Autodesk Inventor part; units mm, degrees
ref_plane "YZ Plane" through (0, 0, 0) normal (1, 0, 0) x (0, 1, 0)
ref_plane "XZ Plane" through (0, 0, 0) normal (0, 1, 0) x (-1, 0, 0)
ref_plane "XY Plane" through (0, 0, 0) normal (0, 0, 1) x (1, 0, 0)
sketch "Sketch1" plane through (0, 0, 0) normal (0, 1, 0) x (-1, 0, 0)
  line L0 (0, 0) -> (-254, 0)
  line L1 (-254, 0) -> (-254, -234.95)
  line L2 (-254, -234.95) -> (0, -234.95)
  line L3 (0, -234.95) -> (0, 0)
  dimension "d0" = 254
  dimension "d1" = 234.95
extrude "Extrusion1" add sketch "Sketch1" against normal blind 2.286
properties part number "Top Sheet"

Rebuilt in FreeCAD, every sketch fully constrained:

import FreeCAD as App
import Part
import Sketcher

V = App.Vector
Q = App.Units.Quantity

doc = App.newDocument("Part")
body = doc.addObject("PartDesign::Body", "Body")

# Sketch on XZ plane
sketch1 = doc.addObject("Sketcher::SketchObject", "Sketch")
body.addObject(sketch1)
sketch1.AttachmentSupport = (doc.XZ_Plane, [""])
sketch1.MapMode = "FlatFace"
sketch1.addGeometry([
    Part.LineSegment(V(0, -235, 0), V(0, 0, 0)),
    Part.LineSegment(V(0, 0, 0), V(254, 0, 0)),
    Part.LineSegment(V(254, 0, 0), V(254, -235, 0)),
    Part.LineSegment(V(254, -235, 0), V(0, -235, 0)),
], False)
sketch1.addConstraint([
    Sketcher.Constraint("Coincident", 0, 2, 1, 1),
    Sketcher.Constraint("Coincident", 1, 2, 2, 1),
    Sketcher.Constraint("Coincident", 2, 2, 3, 1),
    Sketcher.Constraint("Coincident", 3, 2, 0, 1),
    Sketcher.Constraint("Vertical", 0),
    Sketcher.Constraint("Horizontal", 1),
    Sketcher.Constraint("Vertical", 2),
    Sketcher.Constraint("Horizontal", 3),
    Sketcher.Constraint("Coincident", 0, 2, -1, 1),
    Sketcher.Constraint("DistanceX", 1, 1, 1, 2, Q("10 in")),
    Sketcher.Constraint("DistanceY", 0, 1, 0, 2, Q("9.25 in")),
])
pad1 = doc.addObject("PartDesign::Pad", "Pad")
body.addObject(pad1)
pad1.Profile = sketch1
pad1.Length = Q("0.09 in")

doc.recompute()
